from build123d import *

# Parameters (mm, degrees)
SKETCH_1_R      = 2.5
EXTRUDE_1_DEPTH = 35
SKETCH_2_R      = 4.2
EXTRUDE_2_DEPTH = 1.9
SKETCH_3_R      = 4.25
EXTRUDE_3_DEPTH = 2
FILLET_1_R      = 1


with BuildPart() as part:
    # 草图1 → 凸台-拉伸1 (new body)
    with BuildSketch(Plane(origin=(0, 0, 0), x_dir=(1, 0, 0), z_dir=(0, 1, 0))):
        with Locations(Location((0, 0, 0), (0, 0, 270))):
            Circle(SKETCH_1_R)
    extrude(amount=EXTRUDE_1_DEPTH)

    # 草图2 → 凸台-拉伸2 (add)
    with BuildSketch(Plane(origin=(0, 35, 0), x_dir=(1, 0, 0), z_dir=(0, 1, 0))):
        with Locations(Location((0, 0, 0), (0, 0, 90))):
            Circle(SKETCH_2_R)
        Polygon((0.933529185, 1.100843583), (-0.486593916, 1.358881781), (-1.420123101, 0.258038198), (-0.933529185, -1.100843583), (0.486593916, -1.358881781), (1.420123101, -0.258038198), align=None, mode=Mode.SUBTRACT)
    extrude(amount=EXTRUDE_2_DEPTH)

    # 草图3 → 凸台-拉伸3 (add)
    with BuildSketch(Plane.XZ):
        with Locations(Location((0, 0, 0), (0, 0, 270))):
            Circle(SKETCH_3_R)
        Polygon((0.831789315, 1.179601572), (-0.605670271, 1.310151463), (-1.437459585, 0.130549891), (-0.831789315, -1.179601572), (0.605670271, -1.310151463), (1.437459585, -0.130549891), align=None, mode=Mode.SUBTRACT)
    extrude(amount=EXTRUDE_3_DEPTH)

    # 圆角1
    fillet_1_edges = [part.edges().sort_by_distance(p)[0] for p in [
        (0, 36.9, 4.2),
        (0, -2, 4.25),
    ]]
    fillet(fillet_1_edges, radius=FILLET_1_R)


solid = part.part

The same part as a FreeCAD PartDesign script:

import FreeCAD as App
import Part
import Sketcher

V = App.Vector


def edges_at(feature, points):
    """Names of the edges that pass closest to the given points."""
    edges = feature.Shape.Edges
    near = lambda p: min(range(len(edges)), key=lambda i: edges[i].distToShape(Part.Vertex(*p))[0])
    return sorted({f"Edge{near(p) + 1}" for p in points})

doc = App.newDocument("Part")
body = doc.addObject("PartDesign::Body", "Body")

sketch1 = doc.addObject("Sketcher::SketchObject", "Sketch")
body.addObject(sketch1)
sketch1.AttachmentSupport = (doc.XZ_Plane, [""])
sketch1.MapMode = "FlatFace"
sketch1.addGeometry(Part.Circle(V(0, 0, 0), V(0, 0, 1), 2.5), False)
sketch1.addConstraint([
    Sketcher.Constraint("Coincident", 0, 3, -1, 1),
    Sketcher.Constraint("Diameter", 0, 5.0),
])
pad1 = doc.addObject("PartDesign::Pad", "Pad")
body.addObject(pad1)
pad1.Profile = sketch1
pad1.Length = 35
pad1.Reversed = True

sketch2 = doc.addObject("Sketcher::SketchObject", "Sketch001")
body.addObject(sketch2)
sketch2.AttachmentSupport = (doc.XZ_Plane, [""])
sketch2.MapMode = "FlatFace"
sketch2.AttachmentOffset = App.Placement(V(0, 0, -35), App.Rotation())
sketch2.addGeometry([
    Part.Circle(V(0, 0, 0), V(0, 0, 1), 4.2),
    Part.LineSegment(V(-0.486594, -1.358882, 0), V(0.933529, -1.100844, 0)),
    Part.LineSegment(V(0.933529, -1.100844, 0), V(1.420123, 0.258038, 0)),
    Part.LineSegment(V(1.420123, 0.258038, 0), V(0.486594, 1.358882, 0)),
    Part.LineSegment(V(0.486594, 1.358882, 0), V(-0.933529, 1.100844, 0)),
    Part.LineSegment(V(-0.933529, 1.100844, 0), V(-1.420123, -0.258038, 0)),
    Part.LineSegment(V(-1.420123, -0.258038, 0), V(-0.486594, -1.358882, 0)),
], False)
sketch2.addConstraint([
    Sketcher.Constraint("Coincident", 1, 2, 2, 1),
    Sketcher.Constraint("Coincident", 2, 2, 3, 1),
    Sketcher.Constraint("Coincident", 3, 2, 4, 1),
    Sketcher.Constraint("Coincident", 4, 2, 5, 1),
    Sketcher.Constraint("Coincident", 5, 2, 6, 1),
    Sketcher.Constraint("Coincident", 6, 2, 1, 1),
    Sketcher.Constraint("Coincident", 0, 3, -1, 1),
    Sketcher.Constraint("Symmetric", 1, 2, 4, 2, -1, 1),
    Sketcher.Constraint("Symmetric", 2, 2, 5, 2, -1, 1),
    Sketcher.Constraint("Symmetric", 3, 2, 6, 2, -1, 1),
    Sketcher.Constraint("Equal", 1, 2),
    Sketcher.Constraint("Equal", 2, 3),
    Sketcher.Constraint("Diameter", 0, 8.4),
    Sketcher.Constraint("DistanceX", -1, 1, 1, 2, 0.933529),
    Sketcher.Constraint("DistanceY", -1, 1, 2, 2, 0.258038),
    Sketcher.Constraint("DistanceY", -1, 1, 3, 2, 1.358882),
    Sketcher.Constraint("DistanceY", 1, 2, 2, 2, 1.358882),
])
pad2 = doc.addObject("PartDesign::Pad", "Pad001")
body.addObject(pad2)
pad2.Profile = sketch2
pad2.Length = 1.9
pad2.Reversed = True

sketch3 = doc.addObject("Sketcher::SketchObject", "Sketch002")
body.addObject(sketch3)
sketch3.AttachmentSupport = (doc.XZ_Plane, [""])
sketch3.MapMode = "FlatFace"
sketch3.addGeometry([
    Part.Circle(V(0, 0, 0), V(0, 0, 1), 4.25),
    Part.LineSegment(V(-0.60567, 1.310151, 0), V(0.831789, 1.179602, 0)),
    Part.LineSegment(V(0.831789, 1.179602, 0), V(1.43746, -0.13055, 0)),
    Part.LineSegment(V(1.43746, -0.13055, 0), V(0.60567, -1.310151, 0)),
    Part.LineSegment(V(0.60567, -1.310151, 0), V(-0.831789, -1.179602, 0)),
    Part.LineSegment(V(-0.831789, -1.179602, 0), V(-1.43746, 0.13055, 0)),
    Part.LineSegment(V(-1.43746, 0.13055, 0), V(-0.60567, 1.310151, 0)),
], False)
sketch3.addConstraint([
    Sketcher.Constraint("Coincident", 1, 2, 2, 1),
    Sketcher.Constraint("Coincident", 2, 2, 3, 1),
    Sketcher.Constraint("Coincident", 3, 2, 4, 1),
    Sketcher.Constraint("Coincident", 4, 2, 5, 1),
    Sketcher.Constraint("Coincident", 5, 2, 6, 1),
    Sketcher.Constraint("Coincident", 6, 2, 1, 1),
    Sketcher.Constraint("Coincident", 0, 3, -1, 1),
    Sketcher.Constraint("Symmetric", 1, 2, 4, 2, -1, 1),
    Sketcher.Constraint("Symmetric", 2, 2, 5, 2, -1, 1),
    Sketcher.Constraint("Symmetric", 3, 2, 6, 2, -1, 1),
    Sketcher.Constraint("Equal", 1, 2),
    Sketcher.Constraint("Equal", 2, 3),
    Sketcher.Constraint("Diameter", 0, 8.5),
    Sketcher.Constraint("DistanceY", -1, 1, 1, 2, 1.179602),
    Sketcher.Constraint("DistanceY", 3, 2, 2, 2, 1.179602),
    Sketcher.Constraint("DistanceY", 3, 2, 5, 2, 1.440701),
    Sketcher.Constraint("DistanceX", -1, 1, 1, 2, 0.831789),
])
pad3 = doc.addObject("PartDesign::Pad", "Pad002")
body.addObject(pad3)
pad3.Profile = sketch3
pad3.Length = 2
doc.recompute()

fillet = doc.addObject("PartDesign::Fillet", "Fillet")
body.addObject(fillet)
fillet.Base = (pad3, edges_at(pad3, [(0, 36.9, 4.2), (0, -2, 4.25)]))
fillet.Radius = 1

doc.recompute()
